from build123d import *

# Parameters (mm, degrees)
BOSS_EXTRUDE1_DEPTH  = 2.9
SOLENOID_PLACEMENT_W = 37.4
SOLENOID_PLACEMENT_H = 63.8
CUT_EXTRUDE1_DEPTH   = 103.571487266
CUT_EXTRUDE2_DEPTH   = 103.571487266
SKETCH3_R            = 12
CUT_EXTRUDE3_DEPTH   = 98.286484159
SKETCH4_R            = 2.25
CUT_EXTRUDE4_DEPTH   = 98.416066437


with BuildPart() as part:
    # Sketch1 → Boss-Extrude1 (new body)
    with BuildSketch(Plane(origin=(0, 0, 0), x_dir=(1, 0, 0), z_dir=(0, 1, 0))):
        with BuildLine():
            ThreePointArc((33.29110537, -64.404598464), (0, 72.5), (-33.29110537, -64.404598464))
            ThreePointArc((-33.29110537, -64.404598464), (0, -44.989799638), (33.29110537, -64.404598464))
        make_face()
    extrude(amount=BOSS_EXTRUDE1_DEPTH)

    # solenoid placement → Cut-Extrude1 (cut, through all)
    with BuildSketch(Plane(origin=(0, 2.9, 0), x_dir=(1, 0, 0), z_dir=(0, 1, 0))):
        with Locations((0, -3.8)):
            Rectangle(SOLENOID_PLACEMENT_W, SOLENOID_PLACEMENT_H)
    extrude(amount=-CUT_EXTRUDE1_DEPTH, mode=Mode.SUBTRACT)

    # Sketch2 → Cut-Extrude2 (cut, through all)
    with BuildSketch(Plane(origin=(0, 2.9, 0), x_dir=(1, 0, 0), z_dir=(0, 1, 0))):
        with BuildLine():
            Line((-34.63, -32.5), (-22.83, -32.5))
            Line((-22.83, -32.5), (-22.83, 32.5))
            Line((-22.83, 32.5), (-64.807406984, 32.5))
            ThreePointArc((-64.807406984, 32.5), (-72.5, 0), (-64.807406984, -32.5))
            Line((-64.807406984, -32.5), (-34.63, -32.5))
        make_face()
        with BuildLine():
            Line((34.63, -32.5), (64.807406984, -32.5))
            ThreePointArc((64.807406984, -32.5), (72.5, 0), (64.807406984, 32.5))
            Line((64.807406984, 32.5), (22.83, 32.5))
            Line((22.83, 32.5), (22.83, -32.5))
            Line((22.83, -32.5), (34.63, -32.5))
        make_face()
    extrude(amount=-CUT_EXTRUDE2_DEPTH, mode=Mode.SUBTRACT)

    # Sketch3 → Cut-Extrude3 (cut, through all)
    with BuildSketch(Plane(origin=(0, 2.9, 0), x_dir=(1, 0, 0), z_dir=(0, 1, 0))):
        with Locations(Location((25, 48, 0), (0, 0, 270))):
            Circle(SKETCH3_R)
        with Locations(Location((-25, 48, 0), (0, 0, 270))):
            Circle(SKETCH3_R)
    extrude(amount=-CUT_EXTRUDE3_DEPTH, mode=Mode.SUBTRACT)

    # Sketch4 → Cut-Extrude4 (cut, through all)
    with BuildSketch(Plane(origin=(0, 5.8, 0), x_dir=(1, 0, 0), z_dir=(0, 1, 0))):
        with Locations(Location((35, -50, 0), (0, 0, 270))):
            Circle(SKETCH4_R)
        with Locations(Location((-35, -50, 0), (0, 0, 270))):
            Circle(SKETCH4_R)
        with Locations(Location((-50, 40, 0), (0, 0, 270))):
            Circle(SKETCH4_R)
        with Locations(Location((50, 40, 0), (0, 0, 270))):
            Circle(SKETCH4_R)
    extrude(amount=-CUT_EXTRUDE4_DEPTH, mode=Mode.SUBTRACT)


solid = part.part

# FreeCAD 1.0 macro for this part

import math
import FreeCAD as App
import Part
import Sketcher
from FreeCAD import Vector

doc = App.newDocument("Part")
body = doc.addObject("PartDesign::Body", "Body")

# Sketch on XZ plane
sketch1 = body.newObject("Sketcher::SketchObject", "Sketch")
sketch1.AttachmentSupport = (doc.getObject("XZ_Plane"), [""])
sketch1.MapMode = "FlatFace"
sketch1.addGeometry([
    Part.ArcOfCircle(Part.Circle(Vector(0, 0, 0), Vector(0, 0, 1), 72), math.radians(117), math.radians(423)),
    Part.ArcOfCircle(Part.Circle(Vector(0, 83, 0), Vector(0, 0, 1), 38), math.radians(-150), math.radians(-30)),
], False)
sketch1.addConstraint([
    Sketcher.Constraint("Coincident", 0, 1, 1, 1),
    Sketcher.Constraint("Coincident", 1, 2, 0, 2),
    Sketcher.Constraint("Coincident", 0, 3, -1, 1),
    Sketcher.Constraint("PointOnObject", 1, 3, -2),
    Sketcher.Constraint("Radius", 0, 72.5),
    Sketcher.Constraint("Radius", 1, 38.25),
    Sketcher.Constraint("DistanceY", -1, 1, 1, 3, 83.2398),
])
pad1 = body.newObject("PartDesign::Pad", "Pad")
pad1.Profile = sketch1
pad1.Length = 2.9
pad1.Reversed = True

# Sketch on XZ plane
sketch2 = body.newObject("Sketcher::SketchObject", "Sketch001")
sketch2.AttachmentSupport = (doc.getObject("XZ_Plane"), [""])
sketch2.MapMode = "FlatFace"
sketch2.AttachmentOffset = App.Placement(Vector(0, 0, -2.9), App.Rotation())
sketch2.addGeometry([
    Part.LineSegment(Vector(-19, -28, 0), Vector(-19, 36, 0)),
    Part.LineSegment(Vector(-19, 36, 0), Vector(19, 36, 0)),
    Part.LineSegment(Vector(19, 36, 0), Vector(19, -28, 0)),
    Part.LineSegment(Vector(19, -28, 0), Vector(-19, -28, 0)),
], False)
sketch2.addConstraint([
    Sketcher.Constraint("Coincident", 0, 2, 1, 1),
    Sketcher.Constraint("Coincident", 1, 2, 2, 1),
    Sketcher.Constraint("Coincident", 2, 2, 3, 1),
    Sketcher.Constraint("Coincident", 3, 2, 0, 1),
    Sketcher.Constraint("Vertical", 0),
    Sketcher.Constraint("Horizontal", 1),
    Sketcher.Constraint("Vertical", 2),
    Sketcher.Constraint("Horizontal", 3),
    Sketcher.Constraint("DistanceX", 1, 1, 1, 2, 37.4),
    Sketcher.Constraint("DistanceY", 0, 1, 0, 2, 63.8),
    Sketcher.Constraint("DistanceX", 0, 2, -1, 1, 18.7),
    Sketcher.Constraint("DistanceY", -1, 1, 0, 2, 35.7),
])
pocket1 = body.newObject("PartDesign::Pocket", "Pocket")
pocket1.Profile = sketch2
pocket1.Type = "ThroughAll"
pocket1.Reversed = True

# Sketch on XZ plane
sketch3 = body.newObject("Sketcher::SketchObject", "Sketch002")
sketch3.AttachmentSupport = (doc.getObject("XZ_Plane"), [""])
sketch3.MapMode = "FlatFace"
sketch3.AttachmentOffset = App.Placement(Vector(0, 0, -2.9), App.Rotation())
sketch3.addGeometry([
    Part.LineSegment(Vector(-23, 32, 0), Vector(-23, -32, 0)),  # 0
    Part.LineSegment(Vector(-23, -32, 0), Vector(-65, -32, 0)),  # 1
    Part.ArcOfCircle(Part.Circle(Vector(0, 0, 0), Vector(0, 0, 1), 72), math.radians(153), math.radians(207)),  # 2
    Part.LineSegment(Vector(-65, 32, 0), Vector(-23, 32, 0)),  # 3
    Part.ArcOfCircle(Part.Circle(Vector(0, 0, 0), Vector(0, 0, 1), 72), math.radians(-27), math.radians(27)),  # 4
    Part.LineSegment(Vector(65, -32, 0), Vector(23, -32, 0)),  # 5
    Part.LineSegment(Vector(23, -32, 0), Vector(23, 32, 0)),  # 6
    Part.LineSegment(Vector(23, 32, 0), Vector(65, 32, 0)),  # 7
], False)
sketch3.addConstraint([
    Sketcher.Constraint("Coincident", 0, 2, 1, 1),
    Sketcher.Constraint("Coincident", 1, 2, 2, 2),
    Sketcher.Constraint("Coincident", 2, 1, 3, 1),
    Sketcher.Constraint("Coincident", 3, 2, 0, 1),
    Sketcher.Constraint("Coincident", 4, 1, 5, 1),
    Sketcher.Constraint("Coincident", 5, 2, 6, 1),
    Sketcher.Constraint("Coincident", 6, 2, 7, 1),
    Sketcher.Constraint("Coincident", 7, 2, 4, 2),
    Sketcher.Constraint("Vertical", 0),
    Sketcher.Constraint("Horizontal", 1),
    Sketcher.Constraint("Horizontal", 3),
    Sketcher.Constraint("Horizontal", 5),
    Sketcher.Constraint("Vertical", 6),
    Sketcher.Constraint("Horizontal", 7),
    Sketcher.Constraint("Coincident", 2, 3, -1, 1),
    Sketcher.Constraint("Coincident", 4, 3, -1, 1),
    Sketcher.Constraint("Equal", 2, 4),
    Sketcher.Constraint("Symmetric", 3, 2, 5, 2, -1, 1),
    Sketcher.Constraint("Horizontal", 1, 2, 4, 1),
    Sketcher.Constraint("Horizontal", 3, 2, 6, 2),
    Sketcher.Constraint("Radius", 2, 72.5),
    Sketcher.Constraint("DistanceY", 0, 2, 0, 1, 65.0),
    Sketcher.Constraint("DistanceX", 0, 2, -1, 1, 22.83),
])
pocket2 = body.newObject("PartDesign::Pocket", "Pocket001")
pocket2.Profile = sketch3
pocket2.Type = "ThroughAll"
pocket2.Reversed = True

# Sketch on XZ plane
sketch4 = body.newObject("Sketcher::SketchObject", "Sketch003")
sketch4.AttachmentSupport = (doc.getObject("XZ_Plane"), [""])
sketch4.MapMode = "FlatFace"
sketch4.AttachmentOffset = App.Placement(Vector(0, 0, -2.9), App.Rotation())
sketch4.addGeometry([
    Part.Circle(Vector(25, -48, 0), Vector(0, 0, 1), 12),
    Part.Circle(Vector(-25, -48, 0), Vector(0, 0, 1), 12),
], False)
sketch4.addConstraint([
    Sketcher.Constraint("Equal", 0, 1),
    Sketcher.Constraint("Symmetric", 0, 3, 1, 3, -2),
    Sketcher.Constraint("Diameter", 0, 24.0),
    Sketcher.Constraint("DistanceX", -1, 1, 0, 3, 25.0),
    Sketcher.Constraint("DistanceY", 0, 3, -1, 1, 48.0),
])
pocket3 = body.newObject("PartDesign::Pocket", "Pocket002")
pocket3.Profile = sketch4
pocket3.Type = "ThroughAll"
pocket3.Reversed = True

# Sketch on XZ plane
sketch5 = body.newObject("Sketcher::SketchObject", "Sketch004")
sketch5.AttachmentSupport = (doc.getObject("XZ_Plane"), [""])
sketch5.MapMode = "FlatFace"
sketch5.AttachmentOffset = App.Placement(Vector(0, 0, -5.8), App.Rotation())
sketch5.addGeometry([
    Part.Circle(Vector(35, 50, 0), Vector(0, 0, 1), 2.2),
    Part.Circle(Vector(-35, 50, 0), Vector(0, 0, 1), 2.2),
    Part.Circle(Vector(-50, -40, 0), Vector(0, 0, 1), 2.2),
    Part.Circle(Vector(50, -40, 0), Vector(0, 0, 1), 2.2),
], False)
sketch5.addConstraint([
    Sketcher.Constraint("Equal", 0, 1),
    Sketcher.Constraint("Equal", 1, 2),
    Sketcher.Constraint("Equal", 2, 3),
    Sketcher.Constraint("Symmetric", 0, 3, 1, 3, -2),
    Sketcher.Constraint("Symmetric", 2, 3, 3, 3, -2),
    Sketcher.Constraint("Diameter", 0, 4.5),
    Sketcher.Constraint("DistanceX", -1, 1, 0, 3, 35.0),
    Sketcher.Constraint("DistanceY", -1, 1, 0, 3, 50.0),
    Sketcher.Constraint("DistanceX", 2, 3, -1, 1, 50.0),
    Sketcher.Constraint("DistanceY", 2, 3, -1, 1, 40.0),
])
pocket4 = body.newObject("PartDesign::Pocket", "Pocket003")
pocket4.Profile = sketch5
pocket4.Type = "ThroughAll"
pocket4.Reversed = True

doc.recompute()
